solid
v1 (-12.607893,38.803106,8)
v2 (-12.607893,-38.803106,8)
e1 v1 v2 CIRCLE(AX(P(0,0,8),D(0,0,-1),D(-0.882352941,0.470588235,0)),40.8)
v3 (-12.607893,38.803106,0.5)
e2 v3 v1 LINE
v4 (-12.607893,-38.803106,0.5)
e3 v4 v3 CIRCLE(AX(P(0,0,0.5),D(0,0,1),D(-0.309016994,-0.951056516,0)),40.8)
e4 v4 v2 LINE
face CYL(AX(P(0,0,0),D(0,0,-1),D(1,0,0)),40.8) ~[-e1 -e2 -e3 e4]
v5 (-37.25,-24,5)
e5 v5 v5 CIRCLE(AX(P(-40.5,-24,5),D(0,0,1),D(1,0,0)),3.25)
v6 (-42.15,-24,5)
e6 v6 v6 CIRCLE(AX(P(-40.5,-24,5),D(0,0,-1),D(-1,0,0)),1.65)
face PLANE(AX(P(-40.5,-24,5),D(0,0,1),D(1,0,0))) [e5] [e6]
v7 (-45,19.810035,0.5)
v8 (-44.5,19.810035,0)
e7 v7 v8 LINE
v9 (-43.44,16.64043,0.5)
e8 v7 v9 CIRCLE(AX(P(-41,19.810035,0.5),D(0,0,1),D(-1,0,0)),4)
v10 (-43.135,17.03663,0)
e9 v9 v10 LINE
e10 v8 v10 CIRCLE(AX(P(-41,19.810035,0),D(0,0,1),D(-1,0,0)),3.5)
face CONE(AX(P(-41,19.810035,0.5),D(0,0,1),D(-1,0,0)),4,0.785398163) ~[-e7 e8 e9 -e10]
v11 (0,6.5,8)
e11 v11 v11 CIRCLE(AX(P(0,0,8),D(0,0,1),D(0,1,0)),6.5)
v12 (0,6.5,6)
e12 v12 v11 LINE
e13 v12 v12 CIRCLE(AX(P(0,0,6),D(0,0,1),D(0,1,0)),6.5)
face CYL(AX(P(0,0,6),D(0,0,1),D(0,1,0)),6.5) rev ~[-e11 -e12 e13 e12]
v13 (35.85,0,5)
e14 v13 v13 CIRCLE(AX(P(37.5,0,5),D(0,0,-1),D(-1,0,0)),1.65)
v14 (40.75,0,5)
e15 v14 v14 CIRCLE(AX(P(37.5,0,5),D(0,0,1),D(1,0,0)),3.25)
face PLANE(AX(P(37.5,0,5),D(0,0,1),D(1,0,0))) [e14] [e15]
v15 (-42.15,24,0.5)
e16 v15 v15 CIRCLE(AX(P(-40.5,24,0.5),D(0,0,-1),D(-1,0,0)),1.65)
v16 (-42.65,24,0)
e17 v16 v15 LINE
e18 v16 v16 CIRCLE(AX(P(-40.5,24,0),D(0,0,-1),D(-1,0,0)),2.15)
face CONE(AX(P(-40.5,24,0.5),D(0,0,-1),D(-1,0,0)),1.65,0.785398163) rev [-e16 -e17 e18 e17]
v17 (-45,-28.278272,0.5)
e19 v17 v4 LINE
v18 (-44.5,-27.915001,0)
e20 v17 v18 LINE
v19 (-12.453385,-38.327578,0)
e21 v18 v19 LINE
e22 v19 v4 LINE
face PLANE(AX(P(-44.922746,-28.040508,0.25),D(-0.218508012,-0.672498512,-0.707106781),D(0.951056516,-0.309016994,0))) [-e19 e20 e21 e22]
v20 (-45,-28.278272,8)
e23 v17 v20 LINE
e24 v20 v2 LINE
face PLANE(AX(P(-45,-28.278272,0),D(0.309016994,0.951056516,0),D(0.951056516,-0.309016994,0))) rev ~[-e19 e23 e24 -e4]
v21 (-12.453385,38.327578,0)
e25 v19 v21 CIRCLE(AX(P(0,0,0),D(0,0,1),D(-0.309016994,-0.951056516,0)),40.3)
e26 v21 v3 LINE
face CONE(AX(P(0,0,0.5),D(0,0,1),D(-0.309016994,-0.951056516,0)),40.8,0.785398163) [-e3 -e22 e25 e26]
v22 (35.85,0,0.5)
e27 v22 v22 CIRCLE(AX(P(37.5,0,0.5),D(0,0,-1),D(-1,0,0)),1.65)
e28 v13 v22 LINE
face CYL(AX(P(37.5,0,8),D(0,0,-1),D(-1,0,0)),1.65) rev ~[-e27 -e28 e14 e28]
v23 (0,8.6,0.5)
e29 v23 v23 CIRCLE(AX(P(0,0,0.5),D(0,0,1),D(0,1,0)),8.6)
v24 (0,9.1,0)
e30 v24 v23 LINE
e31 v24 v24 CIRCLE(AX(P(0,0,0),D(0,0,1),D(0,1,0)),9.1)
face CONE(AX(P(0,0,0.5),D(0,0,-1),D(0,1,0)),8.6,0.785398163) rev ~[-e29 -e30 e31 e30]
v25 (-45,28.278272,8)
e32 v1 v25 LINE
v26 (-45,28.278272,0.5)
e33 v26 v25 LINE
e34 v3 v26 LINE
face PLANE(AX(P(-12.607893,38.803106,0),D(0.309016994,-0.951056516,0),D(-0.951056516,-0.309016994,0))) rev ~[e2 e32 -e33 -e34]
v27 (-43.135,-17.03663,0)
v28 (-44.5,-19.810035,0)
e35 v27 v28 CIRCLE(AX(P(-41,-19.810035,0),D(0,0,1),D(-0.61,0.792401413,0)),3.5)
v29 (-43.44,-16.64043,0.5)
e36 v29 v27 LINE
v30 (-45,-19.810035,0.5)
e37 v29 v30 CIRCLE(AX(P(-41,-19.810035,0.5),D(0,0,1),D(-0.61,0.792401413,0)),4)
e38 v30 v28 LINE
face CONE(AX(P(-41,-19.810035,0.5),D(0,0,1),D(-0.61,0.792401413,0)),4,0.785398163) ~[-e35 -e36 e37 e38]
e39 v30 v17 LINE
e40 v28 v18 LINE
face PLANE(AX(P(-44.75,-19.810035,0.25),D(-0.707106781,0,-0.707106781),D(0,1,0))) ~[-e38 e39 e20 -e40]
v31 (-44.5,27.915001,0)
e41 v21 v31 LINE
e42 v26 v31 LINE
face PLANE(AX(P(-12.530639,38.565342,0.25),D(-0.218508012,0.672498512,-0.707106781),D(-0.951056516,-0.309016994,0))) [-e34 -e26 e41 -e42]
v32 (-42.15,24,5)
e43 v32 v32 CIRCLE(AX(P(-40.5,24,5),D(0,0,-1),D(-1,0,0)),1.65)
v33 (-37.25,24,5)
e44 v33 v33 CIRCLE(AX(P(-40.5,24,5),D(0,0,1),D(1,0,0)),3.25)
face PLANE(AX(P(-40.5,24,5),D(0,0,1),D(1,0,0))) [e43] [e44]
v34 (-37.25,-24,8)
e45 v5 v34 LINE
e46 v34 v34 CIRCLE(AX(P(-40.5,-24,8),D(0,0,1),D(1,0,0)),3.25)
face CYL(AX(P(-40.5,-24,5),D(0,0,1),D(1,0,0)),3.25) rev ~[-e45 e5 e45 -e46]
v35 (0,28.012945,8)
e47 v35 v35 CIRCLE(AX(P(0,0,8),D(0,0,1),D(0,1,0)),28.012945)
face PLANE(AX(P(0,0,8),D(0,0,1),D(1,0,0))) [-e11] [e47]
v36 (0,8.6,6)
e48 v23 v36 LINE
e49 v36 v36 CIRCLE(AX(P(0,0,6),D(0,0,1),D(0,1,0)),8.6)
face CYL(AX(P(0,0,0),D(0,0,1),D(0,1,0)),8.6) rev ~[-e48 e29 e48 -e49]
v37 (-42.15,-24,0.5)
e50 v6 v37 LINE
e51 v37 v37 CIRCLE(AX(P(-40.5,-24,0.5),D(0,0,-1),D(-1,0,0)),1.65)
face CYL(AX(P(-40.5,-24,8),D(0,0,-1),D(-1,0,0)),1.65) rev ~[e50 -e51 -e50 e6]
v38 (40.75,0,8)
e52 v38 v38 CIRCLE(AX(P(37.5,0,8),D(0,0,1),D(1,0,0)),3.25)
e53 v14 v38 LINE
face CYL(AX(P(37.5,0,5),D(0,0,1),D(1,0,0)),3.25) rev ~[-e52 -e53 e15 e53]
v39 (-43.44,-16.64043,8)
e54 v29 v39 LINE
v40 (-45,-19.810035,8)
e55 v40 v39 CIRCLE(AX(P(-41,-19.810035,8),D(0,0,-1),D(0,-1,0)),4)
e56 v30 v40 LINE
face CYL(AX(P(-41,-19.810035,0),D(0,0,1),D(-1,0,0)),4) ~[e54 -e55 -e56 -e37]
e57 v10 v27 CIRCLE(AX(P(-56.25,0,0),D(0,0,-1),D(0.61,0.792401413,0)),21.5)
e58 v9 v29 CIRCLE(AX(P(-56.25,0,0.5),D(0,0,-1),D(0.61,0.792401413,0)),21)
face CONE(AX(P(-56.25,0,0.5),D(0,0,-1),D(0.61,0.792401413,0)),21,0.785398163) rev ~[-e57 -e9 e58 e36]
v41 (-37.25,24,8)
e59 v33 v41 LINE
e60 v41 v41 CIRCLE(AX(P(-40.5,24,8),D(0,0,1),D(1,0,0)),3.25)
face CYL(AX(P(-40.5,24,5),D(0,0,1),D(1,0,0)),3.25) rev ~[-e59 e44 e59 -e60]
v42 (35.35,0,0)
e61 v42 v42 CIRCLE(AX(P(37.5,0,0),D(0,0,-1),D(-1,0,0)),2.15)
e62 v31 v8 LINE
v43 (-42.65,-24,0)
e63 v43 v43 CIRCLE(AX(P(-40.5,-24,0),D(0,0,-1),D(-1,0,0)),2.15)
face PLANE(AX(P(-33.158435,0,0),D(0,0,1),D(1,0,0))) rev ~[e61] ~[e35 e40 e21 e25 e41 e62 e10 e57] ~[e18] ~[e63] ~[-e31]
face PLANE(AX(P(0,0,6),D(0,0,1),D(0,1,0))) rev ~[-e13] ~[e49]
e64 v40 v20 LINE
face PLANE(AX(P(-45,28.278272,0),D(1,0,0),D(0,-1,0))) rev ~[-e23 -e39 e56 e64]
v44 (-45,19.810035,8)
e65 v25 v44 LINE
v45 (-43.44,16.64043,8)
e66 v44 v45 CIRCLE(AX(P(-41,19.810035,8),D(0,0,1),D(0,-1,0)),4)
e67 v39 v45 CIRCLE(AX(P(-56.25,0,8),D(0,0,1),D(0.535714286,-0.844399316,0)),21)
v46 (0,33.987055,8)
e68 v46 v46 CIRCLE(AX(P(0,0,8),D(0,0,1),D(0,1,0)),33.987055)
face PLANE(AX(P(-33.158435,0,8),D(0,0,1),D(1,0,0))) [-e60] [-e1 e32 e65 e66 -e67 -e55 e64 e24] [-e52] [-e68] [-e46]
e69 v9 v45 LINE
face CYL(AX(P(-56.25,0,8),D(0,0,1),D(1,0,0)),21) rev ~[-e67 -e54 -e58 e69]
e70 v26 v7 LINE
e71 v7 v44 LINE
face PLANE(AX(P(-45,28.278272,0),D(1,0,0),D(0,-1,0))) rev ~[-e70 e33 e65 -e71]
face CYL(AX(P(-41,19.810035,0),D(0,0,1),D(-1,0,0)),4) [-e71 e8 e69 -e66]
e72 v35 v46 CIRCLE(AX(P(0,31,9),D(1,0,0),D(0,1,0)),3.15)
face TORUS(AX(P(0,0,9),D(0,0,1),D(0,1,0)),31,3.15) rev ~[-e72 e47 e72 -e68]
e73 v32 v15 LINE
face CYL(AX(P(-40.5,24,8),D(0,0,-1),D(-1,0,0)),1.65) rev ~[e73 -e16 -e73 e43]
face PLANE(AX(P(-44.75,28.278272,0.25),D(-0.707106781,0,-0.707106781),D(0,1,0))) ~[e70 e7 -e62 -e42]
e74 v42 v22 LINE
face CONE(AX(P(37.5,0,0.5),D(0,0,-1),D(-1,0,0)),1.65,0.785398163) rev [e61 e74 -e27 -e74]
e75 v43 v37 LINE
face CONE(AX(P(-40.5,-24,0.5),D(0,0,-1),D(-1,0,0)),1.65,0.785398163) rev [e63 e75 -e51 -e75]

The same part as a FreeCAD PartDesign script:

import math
import FreeCAD as App
import Part
import Sketcher

V = App.Vector
Q = App.Units.Quantity


def edges_at(feature, points):
    """Names of the edges that pass closest to the given points."""
    edges = feature.Shape.Edges
    near = lambda p: min(range(len(edges)), key=lambda i: edges[i].distToShape(Part.Vertex(*p))[0])
    return sorted({f"Edge{near(p) + 1}" for p in points})


def add_polygon(sketch, points):
    """Adds a closed chain of lines whose ends are joined by coincident constraints."""
    first, n = sketch.GeometryCount, len(points)
    for a, b in zip(points, points[1:] + points[:1]):
        sketch.addGeometry(Part.LineSegment(App.Vector(*a, 0), App.Vector(*b, 0)), False)
    for i in range(n):
        sketch.addConstraint(Sketcher.Constraint("Coincident", first + i, 2, first + (i + 1) % n, 1))

doc = App.newDocument("Part")
body = doc.addObject("PartDesign::Body", "Body")

sketch1 = body.newObject("Sketcher::SketchObject", "Sketch")
sketch1.AttachmentSupport = (doc.getObject("XY_Plane"), [""])
sketch1.MapMode = "FlatFace"
sketch1.addGeometry(Part.Circle(V(0, 0, 0), V(0, 0, 1), 41), False)
sketch1.addConstraint(Sketcher.Constraint("Coincident", 0, 3, -1, 1))
sketch1.addConstraint(Sketcher.Constraint("Diameter", 0, 81.6))
pad1 = body.newObject("PartDesign::Pad", "Pad")
pad1.Profile = sketch1
pad1.Length = 8

sketch2 = body.newObject("Sketcher::SketchObject", "Sketch001")
sketch2.AttachmentSupport = (doc.getObject("YZ_Plane"), [""])
sketch2.MapMode = "FlatFace"
add_polygon(sketch2, [(0, 8), (0, 0), (8.6, 0), (8.6, 6), (6.5, 6), (6.5, 8)])
sketch2.addConstraint(Sketcher.Constraint("Vertical", 0))
sketch2.addConstraint(Sketcher.Constraint("Horizontal", 1))
sketch2.addConstraint(Sketcher.Constraint("Vertical", 2))
sketch2.addConstraint(Sketcher.Constraint("Horizontal", 3))
sketch2.addConstraint(Sketcher.Constraint("Vertical", 4))
sketch2.addConstraint(Sketcher.Constraint("Horizontal", 5))
sketch2.addConstraint(Sketcher.Constraint("Coincident", 0, 2, -1, 1))
sketch2.addConstraint(Sketcher.Constraint("DistanceY", 0, 2, 0, 1, 8.0))
sketch2.addConstraint(Sketcher.Constraint("DistanceY", 2, 1, 2, 2, 6.0))
sketch2.addConstraint(Sketcher.Constraint("DistanceX", 1, 1, 1, 2, 8.6))
sketch2.addConstraint(Sketcher.Constraint("DistanceX", 3, 2, 3, 1, 2.1))
groove = body.newObject("PartDesign::Groove", "Groove")
groove.Profile = sketch2
groove.ReferenceAxis = (sketch2, ["V_Axis"])
groove.Angle = 360

sketch3 = body.newObject("Sketcher::SketchObject", "Sketch002")
sketch3.AttachmentSupport = (doc.getObject("YZ_Plane"), [""])
sketch3.MapMode = "FlatFace"
sketch3.addGeometry(Part.Circle(V(31, 9, 0), V(0, 0, 1), 3.1), False)
sketch3.addConstraint(Sketcher.Constraint("Diameter", 0, 6.3))
sketch3.addConstraint(Sketcher.Constraint("DistanceX", -1, 1, 0, 3, 31.0))
sketch3.addConstraint(Sketcher.Constraint("DistanceY", -1, 1, 0, 3, 9.0))
groove2 = body.newObject("PartDesign::Groove", "Groove001")
groove2.Profile = sketch3
groove2.ReferenceAxis = (sketch3, ["V_Axis"])
groove2.Angle = 360

sketch4 = body.newObject("Sketcher::SketchObject", "Sketch003")
sketch4.AttachmentSupport = (doc.getObject("XY_Plane"), [""])
sketch4.MapMode = "FlatFace"
add_polygon(sketch4, [(-40.8, 19.2), (-40.8, -19.2), (-36, -19.2), (-36, 19.2)])
sketch4.addConstraint(Sketcher.Constraint("Vertical", 0))
sketch4.addConstraint(Sketcher.Constraint("Horizontal", 1))
sketch4.addConstraint(Sketcher.Constraint("Vertical", 2))
sketch4.addConstraint(Sketcher.Constraint("Horizontal", 3))
sketch4.addConstraint(Sketcher.Constraint("DistanceX", 1, 1, 1, 2, 4.8))
sketch4.addConstraint(Sketcher.Constraint("DistanceY", 0, 2, 0, 1, 38.4))
sketch4.addConstraint(Sketcher.Constraint("DistanceX", 1, 2, -1, 1, 36.0))
sketch4.addConstraint(Sketcher.Constraint("DistanceY", 0, 2, -1, 1, 19.2))
pocket1 = body.newObject("PartDesign::Pocket", "Pocket")
pocket1.Profile = sketch4
pocket1.Type = "ThroughAll"
pocket1.Reversed = True

sketch5 = body.newObject("Sketcher::SketchObject", "Sketch004")
sketch5.AttachmentSupport = (doc.getObject("XY_Plane"), [""])
sketch5.MapMode = "FlatFace"
sketch5.addGeometry(Part.LineSegment(V(-45, 28, 0), V(-45, -28, 0)), False)
sketch5.addGeometry(Part.LineSegment(V(-45, -28, 0), V(-13, -39, 0)), False)
sketch5.addGeometry(Part.ArcOfCircle(Part.Circle(V(0, 0, 0), V(0, 0, 1), 41), math.radians(-152), math.radians(-108)), False)
sketch5.addGeometry(Part.LineSegment(V(-36, -19, 0), V(-36, 19, 0)), False)
sketch5.addGeometry(Part.ArcOfCircle(Part.Circle(V(0, 0, 0), V(0, 0, 1), 41), math.radians(108), math.radians(152)), False)
sketch5.addGeometry(Part.LineSegment(V(-13, 39, 0), V(-45, 28, 0)), False)
sketch5.addConstraint(Sketcher.Constraint("Coincident", 0, 2, 1, 1))
sketch5.addConstraint(Sketcher.Constraint("Tangent", 1, 2, 2, 2))
sketch5.addConstraint(Sketcher.Constraint("Coincident", 2, 1, 3, 1))
sketch5.addConstraint(Sketcher.Constraint("Coincident", 3, 2, 4, 2))
sketch5.addConstraint(Sketcher.Constraint("Tangent", 4, 1, 5, 1))
sketch5.addConstraint(Sketcher.Constraint("Coincident", 5, 2, 0, 1))
sketch5.addConstraint(Sketcher.Constraint("Vertical", 0))
sketch5.addConstraint(Sketcher.Constraint("Vertical", 3))
sketch5.addConstraint(Sketcher.Constraint("Coincident", 2, 3, -1, 1))
sketch5.addConstraint(Sketcher.Constraint("Coincident", 4, 3, -1, 1))
sketch5.addConstraint(Sketcher.Constraint("Equal", 2, 4))
sketch5.addConstraint(Sketcher.Constraint("Vertical", 1, 2, 4, 1))
sketch5.addConstraint(Sketcher.Constraint("Radius", 2, 40.8))
sketch5.addConstraint(Sketcher.Constraint("Angle", 1, Q("-18 deg")))
sketch5.addConstraint(Sketcher.Constraint("DistanceY", 3, 1, 3, 2, 38.4))
sketch5.addConstraint(Sketcher.Constraint("DistanceX", 0, 2, -1, 1, 45.0))
pad2 = body.newObject("PartDesign::Pad", "Pad001")
pad2.Profile = sketch5
pad2.Length = 8

sketch6 = body.newObject("Sketcher::SketchObject", "Sketch005")
sketch6.AttachmentSupport = (doc.getObject("XY_Plane"), [""])
sketch6.MapMode = "FlatFace"
sketch6.AttachmentOffset = App.Placement(V(0, 0, 8), App.Rotation())
sketch6.addGeometry(Part.Circle(V(-56, 0, 0), V(0, 0, 1), 21), False)
sketch6.addConstraint(Sketcher.Constraint("PointOnObject", 0, 3, -1))
sketch6.addConstraint(Sketcher.Constraint("Diameter", 0, 42.0))
sketch6.addConstraint(Sketcher.Constraint("DistanceX", 0, 3, -1, 1, 56.25))
pocket2 = body.newObject("PartDesign::Pocket", "Pocket001")
pocket2.Profile = sketch6
pocket2.Type = "ThroughAll"
doc.recompute()

fillet = body.newObject("PartDesign::Fillet", "Fillet")
fillet.Base = (pocket2, edges_at(pocket2, [(-45, -17.732, 4), (-45, 17.732, 4)]))
fillet.Radius = 4

sketch7 = body.newObject("Sketcher::SketchObject", "Sketch006")
sketch7.AttachmentSupport = (doc.getObject("XY_Plane"), [""])
sketch7.MapMode = "FlatFace"
sketch7.AttachmentOffset = App.Placement(V(0, 0, 8), App.Rotation())
sketch7.addGeometry(Part.Circle(V(-40.5, 24, 0), V(0, 0, 1), 1.6), False)
sketch7.addGeometry(Part.Circle(V(-40.5, -24, 0), V(0, 0, 1), 1.6), False)
sketch7.addGeometry(Part.Circle(V(37.5, 0, 0), V(0, 0, 1), 1.6), False)
sketch7.addConstraint(Sketcher.Constraint("Equal", 0, 1))
sketch7.addConstraint(Sketcher.Constraint("Equal", 1, 2))
sketch7.addConstraint(Sketcher.Constraint("Symmetric", 0, 3, 1, 3, -1))
sketch7.addConstraint(Sketcher.Constraint("PointOnObject", 2, 3, -1))
sketch7.addConstraint(Sketcher.Constraint("Diameter", 0, 3.3))
sketch7.addConstraint(Sketcher.Constraint("DistanceY", -1, 1, 0, 3, 24.0))
sketch7.addConstraint(Sketcher.Constraint("DistanceX", 0, 3, 2, 3, 78.0))
sketch7.addConstraint(Sketcher.Constraint("DistanceX", 0, 3, -1, 1, 40.5))
doc.recompute()
hole = body.newObject("PartDesign::Hole", "Hole")
hole.Profile = sketch7
hole.ThreadType = "None"
hole.Diameter = 3.3
hole.DepthType = "ThroughAll"
hole.HoleCutType = "Counterbore"
hole.HoleCutDiameter = 6.5
hole.HoleCutDepth = 3
doc.recompute()

chamfer = body.newObject("PartDesign::Chamfer", "Chamfer")
chamfer.Base = (hole, edges_at(hole, [
    (-45, 24.044, 0),
    (-44.589, 18.044, 0),
    (-28.804, 33.541, 0),
    (-35.25, 0, 0),
    (40.8, 0, 0),
    (-44.589, -18.044, 0),
    (-28.804, -33.541, 0),
    (-45, -24.044, 0),
    (-38.85, -24, 0),
    (-38.85, 24, 0),
    (0, -8.6, 0),
    (39.15, 0, 0),
]))
chamfer.Size = 0.5

doc.recompute()
